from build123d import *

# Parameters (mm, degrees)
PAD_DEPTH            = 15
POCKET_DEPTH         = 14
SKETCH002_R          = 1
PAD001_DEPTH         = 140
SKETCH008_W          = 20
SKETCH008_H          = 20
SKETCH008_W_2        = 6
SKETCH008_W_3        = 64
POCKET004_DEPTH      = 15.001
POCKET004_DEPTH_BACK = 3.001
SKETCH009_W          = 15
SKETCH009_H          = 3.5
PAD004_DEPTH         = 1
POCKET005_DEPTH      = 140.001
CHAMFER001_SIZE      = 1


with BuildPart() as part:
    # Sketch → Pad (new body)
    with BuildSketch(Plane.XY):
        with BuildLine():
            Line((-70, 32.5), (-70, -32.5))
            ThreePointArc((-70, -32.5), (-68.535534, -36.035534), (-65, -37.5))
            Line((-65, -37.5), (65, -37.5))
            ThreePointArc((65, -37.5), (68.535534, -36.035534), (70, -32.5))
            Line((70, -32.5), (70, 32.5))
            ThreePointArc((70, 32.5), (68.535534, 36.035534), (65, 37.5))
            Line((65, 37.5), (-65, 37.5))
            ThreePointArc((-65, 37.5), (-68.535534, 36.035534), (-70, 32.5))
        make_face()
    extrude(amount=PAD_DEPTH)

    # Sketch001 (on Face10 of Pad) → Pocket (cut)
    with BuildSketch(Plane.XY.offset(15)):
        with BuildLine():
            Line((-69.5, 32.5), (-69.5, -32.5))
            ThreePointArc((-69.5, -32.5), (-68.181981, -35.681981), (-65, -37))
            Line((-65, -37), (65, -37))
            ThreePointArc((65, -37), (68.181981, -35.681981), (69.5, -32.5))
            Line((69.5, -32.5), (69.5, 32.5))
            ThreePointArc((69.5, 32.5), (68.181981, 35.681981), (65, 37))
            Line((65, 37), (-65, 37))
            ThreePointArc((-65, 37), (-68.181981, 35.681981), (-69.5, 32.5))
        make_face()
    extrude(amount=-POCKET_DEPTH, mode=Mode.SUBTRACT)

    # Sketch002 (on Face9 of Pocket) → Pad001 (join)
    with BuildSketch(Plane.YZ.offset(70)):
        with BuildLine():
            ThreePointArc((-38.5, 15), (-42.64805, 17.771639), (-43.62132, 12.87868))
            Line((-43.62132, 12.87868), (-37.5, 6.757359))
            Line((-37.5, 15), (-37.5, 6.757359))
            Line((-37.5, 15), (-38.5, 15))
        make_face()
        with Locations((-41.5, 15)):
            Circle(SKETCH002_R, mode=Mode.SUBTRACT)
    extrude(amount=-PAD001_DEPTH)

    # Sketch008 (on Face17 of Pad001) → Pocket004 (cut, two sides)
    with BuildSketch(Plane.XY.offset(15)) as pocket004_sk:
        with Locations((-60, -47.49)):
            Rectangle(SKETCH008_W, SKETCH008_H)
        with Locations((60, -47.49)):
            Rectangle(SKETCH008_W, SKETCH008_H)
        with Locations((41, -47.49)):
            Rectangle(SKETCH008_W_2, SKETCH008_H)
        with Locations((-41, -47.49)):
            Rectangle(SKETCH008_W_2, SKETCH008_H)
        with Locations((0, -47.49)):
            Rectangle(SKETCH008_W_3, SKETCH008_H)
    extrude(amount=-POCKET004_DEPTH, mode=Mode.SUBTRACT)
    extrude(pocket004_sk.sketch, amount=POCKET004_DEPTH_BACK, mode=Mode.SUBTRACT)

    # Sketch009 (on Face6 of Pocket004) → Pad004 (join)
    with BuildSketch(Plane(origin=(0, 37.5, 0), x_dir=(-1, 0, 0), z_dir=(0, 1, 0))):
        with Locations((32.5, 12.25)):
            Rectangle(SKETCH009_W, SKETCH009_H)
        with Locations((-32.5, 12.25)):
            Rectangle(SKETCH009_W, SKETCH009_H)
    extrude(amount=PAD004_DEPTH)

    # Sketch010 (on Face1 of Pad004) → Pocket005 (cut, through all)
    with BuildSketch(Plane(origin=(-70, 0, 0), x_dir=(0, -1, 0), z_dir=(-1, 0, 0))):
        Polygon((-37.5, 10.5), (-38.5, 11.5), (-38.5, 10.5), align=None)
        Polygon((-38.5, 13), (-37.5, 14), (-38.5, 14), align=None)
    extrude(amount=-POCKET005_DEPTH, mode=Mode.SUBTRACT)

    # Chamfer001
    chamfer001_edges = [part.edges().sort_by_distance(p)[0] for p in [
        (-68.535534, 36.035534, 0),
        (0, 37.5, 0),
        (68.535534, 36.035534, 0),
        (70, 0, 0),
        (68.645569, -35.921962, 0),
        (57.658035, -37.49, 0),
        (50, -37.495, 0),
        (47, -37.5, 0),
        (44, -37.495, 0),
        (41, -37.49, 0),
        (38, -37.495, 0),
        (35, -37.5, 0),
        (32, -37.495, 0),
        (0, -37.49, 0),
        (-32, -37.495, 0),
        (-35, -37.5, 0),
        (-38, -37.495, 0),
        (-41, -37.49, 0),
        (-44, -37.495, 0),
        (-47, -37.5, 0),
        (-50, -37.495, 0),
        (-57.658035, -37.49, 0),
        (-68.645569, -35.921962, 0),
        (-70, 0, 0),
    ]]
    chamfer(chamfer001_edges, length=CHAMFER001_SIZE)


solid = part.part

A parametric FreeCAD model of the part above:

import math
import FreeCAD as App
import Part
import Sketcher

V = App.Vector
Q = App.Units.Quantity


def edges_at(feature, points):
    """Names of the edges that pass closest to the given points."""
    edges = feature.Shape.Edges
    near = lambda p: min(range(len(edges)), key=lambda i: edges[i].distToShape(Part.Vertex(*p))[0])
    return sorted({f"Edge{near(p) + 1}" for p in points})


def add_polygon(sketch, points):
    """Adds a closed chain of lines whose ends are joined by coincident constraints."""
    first, n = sketch.GeometryCount, len(points)
    for a, b in zip(points, points[1:] + points[:1]):
        sketch.addGeometry(Part.LineSegment(App.Vector(*a, 0), App.Vector(*b, 0)), False)
    for i in range(n):
        sketch.addConstraint(Sketcher.Constraint("Coincident", first + i, 2, first + (i + 1) % n, 1))

doc = App.newDocument("Part")
body = doc.addObject("PartDesign::Body", "Body")

sketch1 = doc.addObject("Sketcher::SketchObject", "Sketch")
body.addObject(sketch1)
sketch1.AttachmentSupport = (doc.XY_Plane, [""])
sketch1.MapMode = "FlatFace"
sketch1.addGeometry([
    Part.LineSegment(V(-70, 32.5, 0), V(-70, -32.5, 0)),
    Part.ArcOfCircle(Part.Circle(V(-65, -32.5, 0), V(0, 0, 1), 5), math.radians(180), math.radians(270)),
    Part.LineSegment(V(-65, -37.5, 0), V(65, -37.5, 0)),
    Part.ArcOfCircle(Part.Circle(V(65, -32.5, 0), V(0, 0, 1), 5), math.radians(-90), math.radians(0)),
    Part.LineSegment(V(70, -32.5, 0), V(70, 32.5, 0)),
    Part.ArcOfCircle(Part.Circle(V(65, 32.5, 0), V(0, 0, 1), 5), math.radians(0), math.radians(90)),
    Part.LineSegment(V(65, 37.5, 0), V(-65, 37.5, 0)),
    Part.ArcOfCircle(Part.Circle(V(-65, 32.5, 0), V(0, 0, 1), 5), math.radians(90), math.radians(180)),
], False)
sketch1.addConstraint([
    Sketcher.Constraint("Tangent", 0, 2, 1, 1),
    Sketcher.Constraint("Tangent", 1, 2, 2, 1),
    Sketcher.Constraint("Tangent", 2, 2, 3, 1),
    Sketcher.Constraint("Tangent", 3, 2, 4, 1),
    Sketcher.Constraint("Tangent", 4, 2, 5, 1),
    Sketcher.Constraint("Tangent", 5, 2, 6, 1),
    Sketcher.Constraint("Tangent", 6, 2, 7, 1),
    Sketcher.Constraint("Tangent", 7, 2, 0, 1),
    Sketcher.Constraint("Vertical", 0),
    Sketcher.Constraint("Horizontal", 2),
    Sketcher.Constraint("Vertical", 4),
    Sketcher.Constraint("Horizontal", 6),
    Sketcher.Constraint("Equal", 1, 3),
    Sketcher.Constraint("Equal", 3, 5),
    Sketcher.Constraint("Equal", 5, 7),
    Sketcher.Constraint("Symmetric", 1, 3, 5, 3, -1, 1),
    Sketcher.Constraint("Radius", 1, Q("5 mm")),
    Sketcher.Constraint("DistanceX", 2, 1, 2, 2, Q("130 mm")),
    Sketcher.Constraint("DistanceY", 0, 2, 0, 1, Q("65 mm")),
])
pad1 = doc.addObject("PartDesign::Pad", "Pad")
body.addObject(pad1)
pad1.Profile = sketch1
pad1.Length = 15

sketch2 = doc.addObject("Sketcher::SketchObject", "Sketch001")
body.addObject(sketch2)
sketch2.AttachmentSupport = (doc.XY_Plane, [""])
sketch2.MapMode = "FlatFace"
sketch2.AttachmentOffset = App.Placement(V(0, 0, 15), App.Rotation())
sketch2.addGeometry([
    Part.LineSegment(V(-69.5, 32.5, 0), V(-69.5, -32.5, 0)),
    Part.ArcOfCircle(Part.Circle(V(-65, -32.5, 0), V(0, 0, 1), 4.5), math.radians(180), math.radians(270)),
    Part.LineSegment(V(-65, -37, 0), V(65, -37, 0)),
    Part.ArcOfCircle(Part.Circle(V(65, -32.5, 0), V(0, 0, 1), 4.5), math.radians(-90), math.radians(0)),
    Part.LineSegment(V(69.5, -32.5, 0), V(69.5, 32.5, 0)),
    Part.ArcOfCircle(Part.Circle(V(65, 32.5, 0), V(0, 0, 1), 4.5), math.radians(0), math.radians(90)),
    Part.LineSegment(V(65, 37, 0), V(-65, 37, 0)),
    Part.ArcOfCircle(Part.Circle(V(-65, 32.5, 0), V(0, 0, 1), 4.5), math.radians(90), math.radians(180)),
], False)
sketch2.addConstraint([
    Sketcher.Constraint("Tangent", 0, 2, 1, 1),
    Sketcher.Constraint("Tangent", 1, 2, 2, 1),
    Sketcher.Constraint("Tangent", 2, 2, 3, 1),
    Sketcher.Constraint("Tangent", 3, 2, 4, 1),
    Sketcher.Constraint("Tangent", 4, 2, 5, 1),
    Sketcher.Constraint("Tangent", 5, 2, 6, 1),
    Sketcher.Constraint("Tangent", 6, 2, 7, 1),
    Sketcher.Constraint("Tangent", 7, 2, 0, 1),
    Sketcher.Constraint("Vertical", 0),
    Sketcher.Constraint("Horizontal", 2),
    Sketcher.Constraint("Vertical", 4),
    Sketcher.Constraint("Horizontal", 6),
    Sketcher.Constraint("Equal", 1, 3),
    Sketcher.Constraint("Equal", 3, 5),
    Sketcher.Constraint("Equal", 5, 7),
    Sketcher.Constraint("Symmetric", 1, 3, 5, 3, -1, 1),
    Sketcher.Constraint("Radius", 1, Q("4.499998 mm")),
    Sketcher.Constraint("DistanceX", 2, 1, 2, 2, Q("130 mm")),
    Sketcher.Constraint("DistanceY", 0, 2, 0, 1, Q("65 mm")),
])
pocket1 = doc.addObject("PartDesign::Pocket", "Pocket")
body.addObject(pocket1)
pocket1.Profile = sketch2
pocket1.Length = 14

sketch3 = doc.addObject("Sketcher::SketchObject", "Sketch002")
body.addObject(sketch3)
sketch3.AttachmentSupport = (doc.YZ_Plane, [""])
sketch3.MapMode = "FlatFace"
sketch3.AttachmentOffset = App.Placement(V(0, 0, 70), App.Rotation())
sketch3.addGeometry([
    Part.ArcOfCircle(Part.Circle(V(-41.5, 15, 0), V(0, 0, 1), 3), math.radians(0), math.radians(225)),
    Part.LineSegment(V(-43.6, 12.9, 0), V(-37.5, 6.8, 0)),
    Part.LineSegment(V(-37.5, 6.8, 0), V(-37.5, 15, 0)),
    Part.LineSegment(V(-37.5, 15, 0), V(-38.5, 15, 0)),
    Part.Circle(V(-41.5, 15, 0), V(0, 0, 1), 1),
], False)
sketch3.addConstraint([
    Sketcher.Constraint("Tangent", 0, 2, 1, 1),
    Sketcher.Constraint("Coincident", 1, 2, 2, 1),
    Sketcher.Constraint("Coincident", 2, 2, 3, 1),
    Sketcher.Constraint("Coincident", 3, 2, 0, 1),
    Sketcher.Constraint("Vertical", 2),
    Sketcher.Constraint("Horizontal", 3),
    Sketcher.Constraint("Coincident", 4, 3, 0, 3),
    Sketcher.Constraint("Horizontal", 4, 3, 2, 2),
    Sketcher.Constraint("Diameter", 4, Q("2 mm")),
    Sketcher.Constraint("Radius", 0, Q("3 mm")),
    Sketcher.Constraint("DistanceX", 3, 2, 3, 1, Q("1 mm")),
    Sketcher.Constraint("Angle", 1, Q("-45.000005 deg")),
    Sketcher.Constraint("DistanceY", -1, 1, 0, 3, Q("15 mm")),
    Sketcher.Constraint("DistanceX", 0, 3, -1, 1, Q("41.5 mm")),
])
pad2 = doc.addObject("PartDesign::Pad", "Pad001")
body.addObject(pad2)
pad2.Profile = sketch3
pad2.Length = 140
pad2.Reversed = True

sketch4 = doc.addObject("Sketcher::SketchObject", "Sketch003")
body.addObject(sketch4)
sketch4.AttachmentSupport = (doc.XY_Plane, [""])
sketch4.MapMode = "FlatFace"
sketch4.AttachmentOffset = App.Placement(V(0, 0, 15), App.Rotation())
add_polygon(sketch4, [(-70, -37), (-70, -57), (-50, -57), (-50, -37)])
add_polygon(sketch4, [(50, -37), (50, -57), (70, -57), (70, -37)])
add_polygon(sketch4, [(38, -37), (38, -57), (44, -57), (44, -37)])
add_polygon(sketch4, [(-44, -37), (-44, -57), (-38, -57), (-38, -37)])
add_polygon(sketch4, [(-32, -37), (-32, -57), (32, -57), (32, -37)])
sketch4.addConstraint([
    Sketcher.Constraint("Vertical", 0),
    Sketcher.Constraint("Horizontal", 1),
    Sketcher.Constraint("Vertical", 2),
    Sketcher.Constraint("Horizontal", 3),
    Sketcher.Constraint("Vertical", 4),
    Sketcher.Constraint("Horizontal", 5),
    Sketcher.Constraint("Vertical", 6),
    Sketcher.Constraint("Horizontal", 7),
    Sketcher.Constraint("Vertical", 8),
    Sketcher.Constraint("Horizontal", 9),
    Sketcher.Constraint("Vertical", 10),
    Sketcher.Constraint("Horizontal", 11),
    Sketcher.Constraint("Vertical", 12),
    Sketcher.Constraint("Horizontal", 13),
    Sketcher.Constraint("Vertical", 14),
    Sketcher.Constraint("Horizontal", 15),
    Sketcher.Constraint("Vertical", 16),
    Sketcher.Constraint("Horizontal", 17),
    Sketcher.Constraint("Vertical", 18),
    Sketcher.Constraint("Horizontal", 19),
    Sketcher.Constraint("Symmetric", 1, 2, 4, 2, -2),
    Sketcher.Constraint("Symmetric", 3, 2, 6, 2, -2),
    Sketcher.Constraint("Symmetric", 9, 2, 12, 2, -2),
    Sketcher.Constraint("Symmetric", 11, 2, 14, 2, -2),
    Sketcher.Constraint("Horizontal", 5, 2, 8, 2),
    Sketcher.Constraint("Horizontal", 7, 2, 10, 2),
    Sketcher.Constraint("Horizontal", 13, 2, 16, 2),
    Sketcher.Constraint("Horizontal", 15, 2, 18, 2),
    Sketcher.Constraint("Equal", 7, 0),
    Sketcher.Constraint("DistanceX", 1, 1, 1, 2, Q("20 mm")),
    Sketcher.Constraint("DistanceX", 9, 1, 9, 2, Q("6 mm")),
    Sketcher.Constraint("DistanceX", 17, 1, 17, 2, Q("64 mm")),
    Sketcher.Constraint("DistanceX", 0, 2, -1, 1, Q("70 mm")),
    Sketcher.Constraint("DistanceX", -1, 1, 8, 2, Q("38 mm")),
    Sketcher.Constraint("DistanceX", 16, 2, -1, 1, Q("32 mm")),
    Sketcher.Constraint("DistanceY", 0, 2, -1, 1, Q("57.49 mm")),
])
pocket2 = doc.addObject("PartDesign::Pocket", "Pocket001")
body.addObject(pocket2)
pocket2.Profile = sketch4
pocket2.Type = "ThroughAll"
pocket2.Midplane = True

sketch5 = doc.addObject("Sketcher::SketchObject", "Sketch004")
body.addObject(sketch5)
sketch5.AttachmentSupport = (doc.XZ_Plane, [""])
sketch5.MapMode = "FlatFace"
sketch5.AttachmentOffset = App.Placement(V(0, 0, -37.5), App.Rotation())
add_polygon(sketch5, [(-25, 14), (-25, 10.5), (-40, 10.5), (-40, 14)])
add_polygon(sketch5, [(40, 14), (40, 10.5), (25, 10.5), (25, 14)])
sketch5.addConstraint([
    Sketcher.Constraint("Vertical", 0),
    Sketcher.Constraint("Horizontal", 1),
    Sketcher.Constraint("Vertical", 2),
    Sketcher.Constraint("Horizontal", 3),
    Sketcher.Constraint("Vertical", 4),
    Sketcher.Constraint("Horizontal", 5),
    Sketcher.Constraint("Vertical", 6),
    Sketcher.Constraint("Horizontal", 7),
    Sketcher.Constraint("Symmetric", 1, 2, 4, 2, -2),
    Sketcher.Constraint("Symmetric", 3, 2, 6, 2, -2),
    Sketcher.Constraint("DistanceX", 1, 2, 1, 1, Q("15 mm")),
    Sketcher.Constraint("DistanceY", 0, 2, 0, 1, Q("3.5 mm")),
    Sketcher.Constraint("DistanceX", 0, 2, -1, 1, Q("25 mm")),
    Sketcher.Constraint("DistanceY", -1, 1, 2, 2, Q("14 mm")),
])
pad3 = doc.addObject("PartDesign::Pad", "Pad002")
body.addObject(pad3)
pad3.Profile = sketch5
pad3.Length = 1
pad3.Reversed = True

sketch6 = doc.addObject("Sketcher::SketchObject", "Sketch005")
body.addObject(sketch6)
sketch6.AttachmentSupport = (doc.YZ_Plane, [""])
sketch6.MapMode = "FlatFace"
sketch6.AttachmentOffset = App.Placement(V(0, 0, -70), App.Rotation())
add_polygon(sketch6, [(37.5, 10.5), (38.5, 11.5), (38.5, 10.5)])
add_polygon(sketch6, [(38.5, 13), (37.5, 14), (38.5, 14)])
sketch6.addConstraint([
    Sketcher.Constraint("Vertical", 1),
    Sketcher.Constraint("Horizontal", 2),
    Sketcher.Constraint("Horizontal", 4),
    Sketcher.Constraint("Vertical", 5),
    Sketcher.Constraint("Perpendicular", 0, 3),
    Sketcher.Constraint("Vertical", 2, 2, 3, 2),
    Sketcher.Constraint("Vertical", 1, 2, 4, 2),
    Sketcher.Constraint("Equal", 4, 1),
    Sketcher.Constraint("DistanceX", 2, 2, 2, 1, Q("1 mm")),
    Sketcher.Constraint("DistanceY", -1, 1, 3, 2, Q("14 mm")),
    Sketcher.Constraint("DistanceX", -1, 1, 0, 2, Q("38.5 mm")),
    Sketcher.Constraint("DistanceY", -1, 1, 0, 2, Q("11.5 mm")),
])
pocket3 = doc.addObject("PartDesign::Pocket", "Pocket002")
body.addObject(pocket3)
pocket3.Profile = sketch6
pocket3.Type = "ThroughAll"
pocket3.Reversed = True
doc.recompute()

chamfer = doc.addObject("PartDesign::Chamfer", "Chamfer")
body.addObject(chamfer)
chamfer.Base = (pocket3, edges_at(pocket3, [
    (-68.536, 36.036, 0),
    (0, 37.5, 0),
    (68.536, 36.036, 0),
    (70, 0, 0),
    (68.646, -35.922, 0),
    (57.658, -37.49, 0),
    (50, -37.495, 0),
    (47, -37.5, 0),
    (44, -37.495, 0),
    (41, -37.49, 0),
    (38, -37.495, 0),
    (35, -37.5, 0),
    (32, -37.495, 0),
    (0, -37.49, 0),
    (-32, -37.495, 0),
    (-35, -37.5, 0),
    (-38, -37.495, 0),
    (-41, -37.49, 0),
    (-44, -37.495, 0),
    (-47, -37.5, 0),
    (-50, -37.495, 0),
    (-57.658, -37.49, 0),
    (-68.646, -35.922, 0),
    (-70, 0, 0),
]))
chamfer.Size = 1

doc.recompute()
